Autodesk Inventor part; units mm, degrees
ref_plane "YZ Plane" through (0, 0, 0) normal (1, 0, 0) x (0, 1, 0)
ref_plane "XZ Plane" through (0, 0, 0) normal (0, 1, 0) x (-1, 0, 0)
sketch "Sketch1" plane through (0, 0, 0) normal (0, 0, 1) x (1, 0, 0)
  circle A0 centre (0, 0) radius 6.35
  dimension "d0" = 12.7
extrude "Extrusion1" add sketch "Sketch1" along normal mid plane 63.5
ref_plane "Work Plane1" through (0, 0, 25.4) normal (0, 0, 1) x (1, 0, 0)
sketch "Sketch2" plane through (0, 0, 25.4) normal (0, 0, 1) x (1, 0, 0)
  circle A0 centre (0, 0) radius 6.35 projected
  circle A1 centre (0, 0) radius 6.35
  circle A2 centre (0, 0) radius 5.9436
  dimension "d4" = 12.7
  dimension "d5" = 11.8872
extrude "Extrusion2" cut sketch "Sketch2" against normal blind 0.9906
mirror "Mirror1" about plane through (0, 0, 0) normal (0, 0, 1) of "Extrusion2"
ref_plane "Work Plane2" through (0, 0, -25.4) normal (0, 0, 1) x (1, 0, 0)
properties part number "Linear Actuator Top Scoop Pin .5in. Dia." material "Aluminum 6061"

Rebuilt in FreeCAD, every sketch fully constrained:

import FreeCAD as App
import Part
import Sketcher
from FreeCAD import Vector
Q = App.Units.Quantity

doc = App.newDocument("Part")
body = doc.addObject("PartDesign::Body", "Body")

sketch1 = body.newObject("Sketcher::SketchObject", "Sketch")
sketch1.AttachmentSupport = (doc.getObject("XY_Plane"), [""])
sketch1.MapMode = "FlatFace"
sketch1.addGeometry(Part.Circle(Vector(0, 0, 0), Vector(0, 0, 1), 6), False)
sketch1.addConstraint([
    Sketcher.Constraint("Coincident", 0, 3, -1, 1),
    Sketcher.Constraint("Diameter", 0, Q("0.5 in")),
])
pad1 = body.newObject("PartDesign::Pad", "Pad")
pad1.Profile = sketch1
pad1.Length = Q("2.5 in")
pad1.Midplane = True

sketch2 = body.newObject("Sketcher::SketchObject", "Sketch001")
sketch2.AttachmentSupport = (doc.getObject("XY_Plane"), [""])
sketch2.MapMode = "FlatFace"
sketch2.AttachmentOffset = App.Placement(Vector(0, 0, 1 * 25.4), App.Rotation())
sketch2.addGeometry([
    Part.Circle(Vector(0, 0, 0), Vector(0, 0, 1), 6),
    Part.Circle(Vector(0, 0, 0), Vector(0, 0, 1), 6),
], False)
sketch2.addConstraint([
    Sketcher.Constraint("Coincident", 0, 3, -1, 1),
    Sketcher.Constraint("Coincident", 1, 3, -1, 1),
    Sketcher.Constraint("Diameter", 0, Q("0.5 in")),
    Sketcher.Constraint("Diameter", 1, Q("0.468 in")),
])
pocket1 = body.newObject("PartDesign::Pocket", "Pocket")
pocket1.Profile = sketch2
pocket1.Length = Q("0.039 in")
doc.recompute()

mirrored = body.newObject("PartDesign::Mirrored", "Mirrored")
mirrored.Originals = [pocket1]
mirrored.MirrorPlane = (doc.getObject("XY_Plane"), [""])
body.Tip = mirrored

doc.recompute()
